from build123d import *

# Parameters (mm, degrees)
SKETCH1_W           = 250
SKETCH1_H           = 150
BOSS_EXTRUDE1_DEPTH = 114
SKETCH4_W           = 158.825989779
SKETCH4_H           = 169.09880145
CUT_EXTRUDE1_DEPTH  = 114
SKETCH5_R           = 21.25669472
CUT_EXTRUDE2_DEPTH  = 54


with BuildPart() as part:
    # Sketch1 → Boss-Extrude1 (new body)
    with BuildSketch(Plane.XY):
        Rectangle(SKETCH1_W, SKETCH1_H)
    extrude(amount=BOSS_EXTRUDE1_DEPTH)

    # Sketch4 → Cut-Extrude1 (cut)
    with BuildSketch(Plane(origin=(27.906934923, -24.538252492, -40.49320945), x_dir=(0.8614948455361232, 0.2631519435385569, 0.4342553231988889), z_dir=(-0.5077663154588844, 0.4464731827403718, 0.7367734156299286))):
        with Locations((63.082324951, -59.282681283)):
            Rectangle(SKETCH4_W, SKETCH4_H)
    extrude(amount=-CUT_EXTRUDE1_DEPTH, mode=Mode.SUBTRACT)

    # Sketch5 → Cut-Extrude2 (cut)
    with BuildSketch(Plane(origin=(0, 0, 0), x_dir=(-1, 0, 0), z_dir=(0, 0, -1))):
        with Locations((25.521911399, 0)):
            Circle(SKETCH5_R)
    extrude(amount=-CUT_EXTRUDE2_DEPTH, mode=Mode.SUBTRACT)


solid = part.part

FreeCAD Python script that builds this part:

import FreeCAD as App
import Part
import Sketcher

V = App.Vector

doc = App.newDocument("Part")
body = doc.addObject("PartDesign::Body", "Body")

# Sketch on XY plane
sketch1 = doc.addObject("Sketcher::SketchObject", "Sketch")
body.addObject(sketch1)
sketch1.AttachmentSupport = (doc.XY_Plane, [""])
sketch1.MapMode = "FlatFace"
sketch1.addGeometry([
    Part.LineSegment(V(-125, 75, 0), V(-125, -75, 0)),
    Part.LineSegment(V(-125, -75, 0), V(125, -75, 0)),
    Part.LineSegment(V(125, -75, 0), V(125, 75, 0)),
    Part.LineSegment(V(125, 75, 0), V(-125, 75, 0)),
], False)
sketch1.addConstraint([
    Sketcher.Constraint("Coincident", 0, 2, 1, 1),
    Sketcher.Constraint("Coincident", 1, 2, 2, 1),
    Sketcher.Constraint("Coincident", 2, 2, 3, 1),
    Sketcher.Constraint("Coincident", 3, 2, 0, 1),
    Sketcher.Constraint("Vertical", 0),
    Sketcher.Constraint("Horizontal", 1),
    Sketcher.Constraint("Vertical", 2),
    Sketcher.Constraint("Horizontal", 3),
    Sketcher.Constraint("Symmetric", 0, 2, 2, 2, -1, 1),
    Sketcher.Constraint("DistanceX", 1, 1, 1, 2, 250.0),
    Sketcher.Constraint("DistanceY", 0, 2, 0, 1, 150.0),
])
pad1 = doc.addObject("PartDesign::Pad", "Pad")
body.addObject(pad1)
pad1.Profile = sketch1
pad1.Length = 114

# Sketch on an angled plane
sketch2 = doc.addObject("Sketcher::SketchObject", "Sketch001")
body.addObject(sketch2)
sketch2.Placement = App.Placement(V(27.906935, -24.538252, -40.493209), App.Rotation(V(0.861494846, 0.263151944, 0.434255323), V(0, 0.855226726, -0.518254039), V(-0.507766315, 0.446473183, 0.736773416), "ZXY"))
sketch2.addGeometry([
    Part.LineSegment(V(-16, 25, 0), V(-16, -144, 0)),
    Part.LineSegment(V(-16, -144, 0), V(142, -144, 0)),
    Part.LineSegment(V(142, -144, 0), V(142, 25, 0)),
    Part.LineSegment(V(142, 25, 0), V(-16, 25, 0)),
], False)
sketch2.addConstraint([
    Sketcher.Constraint("Coincident", 0, 2, 1, 1),
    Sketcher.Constraint("Coincident", 1, 2, 2, 1),
    Sketcher.Constraint("Coincident", 2, 2, 3, 1),
    Sketcher.Constraint("Coincident", 3, 2, 0, 1),
    Sketcher.Constraint("Vertical", 0),
    Sketcher.Constraint("Horizontal", 1),
    Sketcher.Constraint("Vertical", 2),
    Sketcher.Constraint("Horizontal", 3),
    Sketcher.Constraint("DistanceY", 0, 2, 0, 1, 169.098802),
    Sketcher.Constraint("DistanceX", 1, 1, 1, 2, 158.82599),
    Sketcher.Constraint("DistanceX", 0, 2, -1, 1, 16.33067),
    Sketcher.Constraint("DistanceY", -1, 1, 2, 2, 25.266719),
])
pocket1 = doc.addObject("PartDesign::Pocket", "Pocket")
body.addObject(pocket1)
pocket1.Profile = sketch2
pocket1.Length = 114

# Sketch on XY plane
sketch3 = doc.addObject("Sketcher::SketchObject", "Sketch002")
body.addObject(sketch3)
sketch3.AttachmentSupport = (doc.XY_Plane, [""])
sketch3.MapMode = "FlatFace"
sketch3.addGeometry(Part.Circle(V(-26, 0, 0), V(0, 0, 1), 21), False)
sketch3.addConstraint([
    Sketcher.Constraint("PointOnObject", 0, 3, -1),
    Sketcher.Constraint("Diameter", 0, 42.513389),
    Sketcher.Constraint("DistanceX", 0, 3, -1, 1, 25.521911),
])
pocket2 = doc.addObject("PartDesign::Pocket", "Pocket001")
body.addObject(pocket2)
pocket2.Profile = sketch3
pocket2.Length = 54
pocket2.Reversed = True

doc.recompute()
